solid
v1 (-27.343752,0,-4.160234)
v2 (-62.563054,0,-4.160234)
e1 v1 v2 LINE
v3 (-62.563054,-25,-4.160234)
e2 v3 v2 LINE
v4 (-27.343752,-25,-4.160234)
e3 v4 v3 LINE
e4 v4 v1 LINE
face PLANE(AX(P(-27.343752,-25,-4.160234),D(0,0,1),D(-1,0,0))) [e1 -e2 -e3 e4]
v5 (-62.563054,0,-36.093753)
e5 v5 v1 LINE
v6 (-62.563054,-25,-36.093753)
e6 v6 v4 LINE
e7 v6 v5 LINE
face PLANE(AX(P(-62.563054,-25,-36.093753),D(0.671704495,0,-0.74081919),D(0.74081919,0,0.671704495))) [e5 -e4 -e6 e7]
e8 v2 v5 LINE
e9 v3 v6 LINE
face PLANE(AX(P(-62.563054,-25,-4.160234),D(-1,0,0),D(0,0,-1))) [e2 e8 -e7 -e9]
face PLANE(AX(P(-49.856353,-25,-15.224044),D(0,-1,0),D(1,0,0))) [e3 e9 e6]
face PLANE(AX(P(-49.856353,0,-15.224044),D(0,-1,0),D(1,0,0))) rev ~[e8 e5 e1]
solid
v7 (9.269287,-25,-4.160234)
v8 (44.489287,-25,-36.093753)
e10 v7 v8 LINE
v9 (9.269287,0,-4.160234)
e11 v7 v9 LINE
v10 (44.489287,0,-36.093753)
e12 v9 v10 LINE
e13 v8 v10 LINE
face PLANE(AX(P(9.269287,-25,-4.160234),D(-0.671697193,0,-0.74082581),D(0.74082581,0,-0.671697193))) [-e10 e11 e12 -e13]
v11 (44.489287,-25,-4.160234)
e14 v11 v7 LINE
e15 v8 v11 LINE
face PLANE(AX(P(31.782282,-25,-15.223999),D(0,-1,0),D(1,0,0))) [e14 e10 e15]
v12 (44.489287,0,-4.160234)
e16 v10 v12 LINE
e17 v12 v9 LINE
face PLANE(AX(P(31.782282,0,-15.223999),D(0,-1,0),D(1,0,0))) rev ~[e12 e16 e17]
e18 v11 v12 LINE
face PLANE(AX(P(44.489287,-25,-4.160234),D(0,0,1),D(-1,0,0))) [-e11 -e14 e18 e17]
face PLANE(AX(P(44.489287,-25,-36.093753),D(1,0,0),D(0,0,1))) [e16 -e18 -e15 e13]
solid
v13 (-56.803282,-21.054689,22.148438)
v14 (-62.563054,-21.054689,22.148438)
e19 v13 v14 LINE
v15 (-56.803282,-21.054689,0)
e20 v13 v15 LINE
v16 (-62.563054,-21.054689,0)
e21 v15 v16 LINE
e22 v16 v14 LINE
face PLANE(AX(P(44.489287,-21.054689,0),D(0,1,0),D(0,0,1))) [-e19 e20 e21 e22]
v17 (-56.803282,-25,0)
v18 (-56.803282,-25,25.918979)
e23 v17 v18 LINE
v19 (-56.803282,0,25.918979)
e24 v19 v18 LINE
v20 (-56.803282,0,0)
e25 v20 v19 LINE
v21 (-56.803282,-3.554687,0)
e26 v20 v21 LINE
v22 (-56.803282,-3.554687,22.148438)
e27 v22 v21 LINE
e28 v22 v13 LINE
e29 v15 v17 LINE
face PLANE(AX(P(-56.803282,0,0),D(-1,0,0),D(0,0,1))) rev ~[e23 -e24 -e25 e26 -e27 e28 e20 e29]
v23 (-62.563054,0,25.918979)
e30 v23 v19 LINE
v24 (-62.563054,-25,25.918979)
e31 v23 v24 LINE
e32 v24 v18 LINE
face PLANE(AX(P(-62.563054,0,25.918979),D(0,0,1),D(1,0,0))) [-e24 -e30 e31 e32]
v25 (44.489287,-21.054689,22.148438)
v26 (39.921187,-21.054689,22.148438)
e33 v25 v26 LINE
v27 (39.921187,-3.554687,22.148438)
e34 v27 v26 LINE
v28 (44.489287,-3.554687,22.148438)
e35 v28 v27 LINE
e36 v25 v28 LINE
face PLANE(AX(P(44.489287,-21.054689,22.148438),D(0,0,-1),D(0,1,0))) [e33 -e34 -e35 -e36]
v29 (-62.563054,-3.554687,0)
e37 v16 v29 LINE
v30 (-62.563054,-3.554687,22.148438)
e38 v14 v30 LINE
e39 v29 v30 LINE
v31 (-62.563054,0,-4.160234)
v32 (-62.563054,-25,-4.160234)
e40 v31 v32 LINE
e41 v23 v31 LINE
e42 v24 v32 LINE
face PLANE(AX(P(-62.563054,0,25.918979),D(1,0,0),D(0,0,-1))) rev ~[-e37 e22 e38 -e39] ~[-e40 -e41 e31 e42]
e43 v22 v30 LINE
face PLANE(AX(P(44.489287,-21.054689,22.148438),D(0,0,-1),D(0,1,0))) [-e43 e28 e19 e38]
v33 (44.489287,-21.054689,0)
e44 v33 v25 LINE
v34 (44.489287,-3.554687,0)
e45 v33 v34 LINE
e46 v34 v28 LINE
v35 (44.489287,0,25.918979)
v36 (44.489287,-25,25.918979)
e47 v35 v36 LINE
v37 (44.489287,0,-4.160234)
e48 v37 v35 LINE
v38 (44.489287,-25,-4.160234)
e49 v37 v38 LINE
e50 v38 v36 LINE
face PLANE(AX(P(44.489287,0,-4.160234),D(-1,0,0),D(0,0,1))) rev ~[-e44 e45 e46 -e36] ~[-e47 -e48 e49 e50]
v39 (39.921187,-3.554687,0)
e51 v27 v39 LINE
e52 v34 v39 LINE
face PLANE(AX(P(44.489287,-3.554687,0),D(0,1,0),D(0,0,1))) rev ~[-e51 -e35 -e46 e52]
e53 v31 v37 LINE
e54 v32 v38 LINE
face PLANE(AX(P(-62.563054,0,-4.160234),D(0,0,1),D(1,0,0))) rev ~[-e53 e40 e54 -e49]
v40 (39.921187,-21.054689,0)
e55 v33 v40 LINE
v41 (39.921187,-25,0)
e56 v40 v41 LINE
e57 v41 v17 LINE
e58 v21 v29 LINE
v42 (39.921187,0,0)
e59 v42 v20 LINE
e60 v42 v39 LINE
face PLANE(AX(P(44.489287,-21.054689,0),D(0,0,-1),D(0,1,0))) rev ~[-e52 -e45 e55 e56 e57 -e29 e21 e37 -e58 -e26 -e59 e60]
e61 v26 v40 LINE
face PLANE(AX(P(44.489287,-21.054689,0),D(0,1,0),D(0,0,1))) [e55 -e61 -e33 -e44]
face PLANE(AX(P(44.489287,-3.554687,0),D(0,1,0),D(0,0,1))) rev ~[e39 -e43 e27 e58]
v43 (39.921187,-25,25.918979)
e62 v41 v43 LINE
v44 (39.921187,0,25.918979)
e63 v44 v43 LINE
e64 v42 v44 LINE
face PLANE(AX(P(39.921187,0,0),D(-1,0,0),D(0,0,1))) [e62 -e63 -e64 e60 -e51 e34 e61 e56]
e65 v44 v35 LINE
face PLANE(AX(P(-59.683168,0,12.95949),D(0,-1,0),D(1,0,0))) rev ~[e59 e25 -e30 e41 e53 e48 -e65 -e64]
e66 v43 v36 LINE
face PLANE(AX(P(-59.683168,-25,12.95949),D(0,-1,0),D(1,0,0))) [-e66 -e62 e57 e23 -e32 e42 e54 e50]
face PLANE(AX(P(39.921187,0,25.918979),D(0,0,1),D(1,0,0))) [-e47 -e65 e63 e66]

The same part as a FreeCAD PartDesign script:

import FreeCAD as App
import Part
import Sketcher

V = App.Vector
Q = App.Units.Quantity


def add_polygon(sketch, points):
    """Adds a closed chain of lines whose ends are joined by coincident constraints."""
    first, n = sketch.GeometryCount, len(points)
    for a, b in zip(points, points[1:] + points[:1]):
        sketch.addGeometry(Part.LineSegment(App.Vector(*a, 0), App.Vector(*b, 0)), False)
    for i in range(n):
        sketch.addConstraint(Sketcher.Constraint("Coincident", first + i, 2, first + (i + 1) % n, 1))

doc = App.newDocument("Part")
body = doc.addObject("PartDesign::Body", "Body")

# Sketch on XZ plane
sketch1 = body.newObject("Sketcher::SketchObject", "Sketch")
sketch1.AttachmentSupport = (doc.getObject("XZ_Plane"), [""])
sketch1.MapMode = "FlatFace"
add_polygon(sketch1, [(-62.6, 25.9), (-62.6, -4.2), (44.5, -4.2), (44.5, 25.9), (39.9, 25.9), (39.9, 0), (-56.8, 0), (-56.8, 25.9)])  # lines 0-7
sketch1.addConstraint(Sketcher.Constraint("Vertical", 0))
sketch1.addConstraint(Sketcher.Constraint("Horizontal", 1))
sketch1.addConstraint(Sketcher.Constraint("Vertical", 2))
sketch1.addConstraint(Sketcher.Constraint("Horizontal", 3))
sketch1.addConstraint(Sketcher.Constraint("Vertical", 4))
sketch1.addConstraint(Sketcher.Constraint("Horizontal", 5))
sketch1.addConstraint(Sketcher.Constraint("Vertical", 6))
sketch1.addConstraint(Sketcher.Constraint("Horizontal", 7))
sketch1.addConstraint(Sketcher.Constraint("PointOnObject", 4, 2, -1))
sketch1.addConstraint(Sketcher.Constraint("Horizontal", 3, 2, 6, 2))
sketch1.addConstraint(Sketcher.Constraint("DistanceX", 3, 2, 3, 1, Q("4.5681 mm")))
sketch1.addConstraint(Sketcher.Constraint("DistanceX", 1, 1, 1, 2, Q("107.052341 mm")))
sketch1.addConstraint(Sketcher.Constraint("DistanceX", 5, 2, 5, 1, Q("96.724469 mm")))
sketch1.addConstraint(Sketcher.Constraint("DistanceY", 4, 2, 4, 1, Q("25.918979 mm")))
sketch1.addConstraint(Sketcher.Constraint("DistanceY", 0, 2, 0, 1, Q("30.079213 mm")))
sketch1.addConstraint(Sketcher.Constraint("DistanceX", 0, 2, -1, 1, Q("62.563054 mm")))
pad1 = body.newObject("PartDesign::Pad", "Pad")
pad1.Profile = sketch1
pad1.Length = 25

# Sketch on YZ plane
sketch2 = body.newObject("Sketcher::SketchObject", "Sketch001")
sketch2.AttachmentSupport = (doc.getObject("YZ_Plane"), [""])
sketch2.MapMode = "FlatFace"
sketch2.AttachmentOffset = App.Placement(V(0, 0, 44.489287), App.Rotation())
add_polygon(sketch2, [(-21, 22), (-21, 0), (-4, 0), (-4, 22)])  # lines 0-3
sketch2.addConstraint(Sketcher.Constraint("Vertical", 0))
sketch2.addConstraint(Sketcher.Constraint("Horizontal", 1))
sketch2.addConstraint(Sketcher.Constraint("Vertical", 2))
sketch2.addConstraint(Sketcher.Constraint("Horizontal", 3))
sketch2.addConstraint(Sketcher.Constraint("PointOnObject", 0, 2, -1))
sketch2.addConstraint(Sketcher.Constraint("DistanceX", 1, 1, 1, 2, Q("17.500002 mm")))
sketch2.addConstraint(Sketcher.Constraint("DistanceY", 0, 2, 0, 1, Q("22.148438 mm")))
sketch2.addConstraint(Sketcher.Constraint("DistanceX", 0, 2, -1, 1, Q("21.054689 mm")))
pocket1 = body.newObject("PartDesign::Pocket", "Pocket")
pocket1.Profile = sketch2
pocket1.Type = "ThroughAll"
body2 = doc.addObject("PartDesign::Body", "Body001")

# Sketch on XZ plane
sketch3 = body2.newObject("Sketcher::SketchObject", "Sketch002")
sketch3.AttachmentSupport = (doc.getObject("XZ_Plane001"), [""])
sketch3.MapMode = "FlatFace"
sketch3.AttachmentOffset = App.Placement(V(0, 0, 25), App.Rotation())
add_polygon(sketch3, [(44, -4), (9, -4), (44, -36)])  # lines 0-2
sketch3.addConstraint(Sketcher.Constraint("Horizontal", 0))
sketch3.addConstraint(Sketcher.Constraint("Vertical", 2))
sketch3.addConstraint(Sketcher.Constraint("DistanceX", 0, 2, 0, 1, Q("35.22 mm")))
sketch3.addConstraint(Sketcher.Constraint("DistanceY", 2, 1, 2, 2, Q("31.933519 mm")))
sketch3.addConstraint(Sketcher.Constraint("DistanceX", -1, 1, 0, 2, Q("9.269287 mm")))
sketch3.addConstraint(Sketcher.Constraint("DistanceY", 0, 2, -1, 1, Q("4.160234 mm")))
pad2 = body2.newObject("PartDesign::Pad", "Pad001")
pad2.Profile = sketch3
pad2.Length = 25
pad2.Reversed = True
body3 = doc.addObject("PartDesign::Body", "Body002")

# Sketch on XZ plane
sketch4 = body3.newObject("Sketcher::SketchObject", "Sketch003")
sketch4.AttachmentSupport = (doc.getObject("XZ_Plane002"), [""])
sketch4.MapMode = "FlatFace"
sketch4.AttachmentOffset = App.Placement(V(0, 0, 25), App.Rotation())
add_polygon(sketch4, [(-27, -4), (-63, -4), (-63, -36)])  # lines 0-2
sketch4.addConstraint(Sketcher.Constraint("Horizontal", 0))
sketch4.addConstraint(Sketcher.Constraint("Vertical", 1))
sketch4.addConstraint(Sketcher.Constraint("DistanceY", 1, 2, 1, 1, Q("31.933519 mm")))
sketch4.addConstraint(Sketcher.Constraint("DistanceX", 0, 2, 0, 1, Q("35.219302 mm")))
sketch4.addConstraint(Sketcher.Constraint("DistanceX", 2, 2, -1, 1, Q("27.343752 mm")))
sketch4.addConstraint(Sketcher.Constraint("DistanceY", 0, 2, -1, 1, Q("4.160234 mm")))
pad3 = body3.newObject("PartDesign::Pad", "Pad002")
pad3.Profile = sketch4
pad3.Length = 25
pad3.Reversed = True

doc.recompute()
